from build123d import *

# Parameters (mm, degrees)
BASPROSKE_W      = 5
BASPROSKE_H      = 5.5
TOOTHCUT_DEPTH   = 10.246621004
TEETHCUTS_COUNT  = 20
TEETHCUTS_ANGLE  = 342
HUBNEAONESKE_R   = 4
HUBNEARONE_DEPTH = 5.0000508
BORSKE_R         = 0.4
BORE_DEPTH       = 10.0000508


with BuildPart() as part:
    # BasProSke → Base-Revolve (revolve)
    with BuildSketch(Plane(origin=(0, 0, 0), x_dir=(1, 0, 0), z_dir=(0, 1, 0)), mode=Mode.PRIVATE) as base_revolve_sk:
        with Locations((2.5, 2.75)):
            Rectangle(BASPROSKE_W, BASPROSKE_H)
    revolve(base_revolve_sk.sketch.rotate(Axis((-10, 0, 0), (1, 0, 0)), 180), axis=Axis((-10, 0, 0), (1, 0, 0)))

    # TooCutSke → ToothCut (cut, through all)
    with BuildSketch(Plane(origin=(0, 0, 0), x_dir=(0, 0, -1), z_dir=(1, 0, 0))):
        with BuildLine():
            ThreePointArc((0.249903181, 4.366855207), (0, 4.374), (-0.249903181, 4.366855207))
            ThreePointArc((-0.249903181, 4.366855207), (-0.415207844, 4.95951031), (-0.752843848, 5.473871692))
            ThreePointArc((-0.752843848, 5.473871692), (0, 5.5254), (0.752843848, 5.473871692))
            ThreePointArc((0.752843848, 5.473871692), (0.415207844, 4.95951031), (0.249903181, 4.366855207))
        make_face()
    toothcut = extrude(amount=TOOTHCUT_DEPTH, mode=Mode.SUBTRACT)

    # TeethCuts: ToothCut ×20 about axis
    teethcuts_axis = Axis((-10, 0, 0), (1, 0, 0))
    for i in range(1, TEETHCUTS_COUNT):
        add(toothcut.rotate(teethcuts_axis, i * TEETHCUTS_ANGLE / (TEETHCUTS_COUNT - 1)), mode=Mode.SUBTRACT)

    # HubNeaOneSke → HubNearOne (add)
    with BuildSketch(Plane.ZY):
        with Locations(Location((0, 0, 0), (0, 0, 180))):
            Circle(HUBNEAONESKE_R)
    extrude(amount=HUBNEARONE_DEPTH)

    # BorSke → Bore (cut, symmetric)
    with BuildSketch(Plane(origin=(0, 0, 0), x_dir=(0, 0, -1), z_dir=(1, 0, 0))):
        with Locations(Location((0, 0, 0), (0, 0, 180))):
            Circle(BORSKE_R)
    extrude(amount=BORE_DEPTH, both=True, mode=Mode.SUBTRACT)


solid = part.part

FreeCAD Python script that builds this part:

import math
import FreeCAD as App
import Part
import Sketcher

doc = App.newDocument("Part")
body = doc.addObject("PartDesign::Body", "Body")

sketch1 = body.newObject("Sketcher::SketchObject", "Sketch")
sketch1.AttachmentSupport = (doc.getObject("XZ_Plane"), [""])
sketch1.MapMode = "FlatFace"
sketch1.addGeometry([
    Part.LineSegment(App.Vector(0, -6, 0), App.Vector(0, 0, 0)),
    Part.LineSegment(App.Vector(0, 0, 0), App.Vector(5, 0, 0)),
    Part.LineSegment(App.Vector(5, 0, 0), App.Vector(5, -6, 0)),
    Part.LineSegment(App.Vector(5, -6, 0), App.Vector(0, -6, 0)),
], False)
sketch1.addConstraint([
    Sketcher.Constraint("Coincident", 0, 2, 1, 1),
    Sketcher.Constraint("Coincident", 1, 2, 2, 1),
    Sketcher.Constraint("Coincident", 2, 2, 3, 1),
    Sketcher.Constraint("Coincident", 3, 2, 0, 1),
    Sketcher.Constraint("Vertical", 0),
    Sketcher.Constraint("Horizontal", 1),
    Sketcher.Constraint("Vertical", 2),
    Sketcher.Constraint("Horizontal", 3),
    Sketcher.Constraint("Coincident", 0, 2, -1, 1),
    Sketcher.Constraint("DistanceX", 1, 1, 1, 2, 5.0),
    Sketcher.Constraint("DistanceY", 0, 1, 0, 2, 5.5),
])
revolution = body.newObject("PartDesign::Revolution", "Revolution")
revolution.Profile = sketch1
revolution.ReferenceAxis = (sketch1, ["H_Axis"])
revolution.Angle = 360

sketch2 = body.newObject("Sketcher::SketchObject", "Sketch001")
sketch2.AttachmentSupport = (doc.getObject("YZ_Plane"), [""])
sketch2.MapMode = "FlatFace"
sketch2.addGeometry([
    Part.ArcOfCircle(Part.Circle(App.Vector(0, 0, 0), App.Vector(0, 0, 1), 4.37), math.radians(-3.28), math.radians(3.28)),
    Part.ArcOfCircle(Part.Circle(App.Vector(4.13, -2.24, 0), App.Vector(0, 0, 1), 2), math.radians(48), math.radians(83)),
    Part.ArcOfCircle(Part.Circle(App.Vector(0, 0, 0), App.Vector(0, 0, 1), 5.53), math.radians(-7.83), math.radians(7.83)),
    Part.ArcOfCircle(Part.Circle(App.Vector(4.13, 2.24, 0), App.Vector(0, 0, 1), 2), math.radians(-83), math.radians(-48)),
], False)
sketch2.addConstraint([
    Sketcher.Constraint("Coincident", 0, 1, 1, 2),
    Sketcher.Constraint("Coincident", 1, 1, 2, 1),
    Sketcher.Constraint("Coincident", 2, 2, 3, 2),
    Sketcher.Constraint("Coincident", 3, 1, 0, 2),
    Sketcher.Constraint("Coincident", 0, 3, -1, 1),
    Sketcher.Constraint("Coincident", 2, 3, -1, 1),
    Sketcher.Constraint("Equal", 1, 3),
    Sketcher.Constraint("Symmetric", 1, 3, 3, 3, -1),
    Sketcher.Constraint("Radius", 1, 2.0),
    Sketcher.Constraint("Radius", 0, 4.374),
    Sketcher.Constraint("Radius", 2, 5.5254),
    Sketcher.Constraint("DistanceY", 0, 1, 3, 3, 2.485998),
    Sketcher.Constraint("DistanceX", -1, 1, 1, 1, 5.473872),
])
pocket1 = body.newObject("PartDesign::Pocket", "Pocket")
pocket1.Profile = sketch2
pocket1.Type = "ThroughAll"
pocket1.Reversed = True
doc.recompute()

polarpattern = body.newObject("PartDesign::PolarPattern", "PolarPattern")
polarpattern.Originals = [pocket1]
polarpattern.Axis = (doc.getObject("X_Axis"), [""])
polarpattern.Angle = 360
polarpattern.Occurrences = 20
body.Tip = polarpattern

sketch3 = body.newObject("Sketcher::SketchObject", "Sketch002")
sketch3.AttachmentSupport = (doc.getObject("YZ_Plane"), [""])
sketch3.MapMode = "FlatFace"
sketch3.addGeometry(Part.Circle(App.Vector(0, 0, 0), App.Vector(0, 0, 1), 4), False)
sketch3.addConstraint([
    Sketcher.Constraint("Coincident", 0, 3, -1, 1),
    Sketcher.Constraint("Diameter", 0, 8.0),
])
pad1 = body.newObject("PartDesign::Pad", "Pad")
pad1.Profile = sketch3
pad1.Length = 5.000051
pad1.Reversed = True

sketch4 = body.newObject("Sketcher::SketchObject", "Sketch003")
sketch4.AttachmentSupport = (doc.getObject("YZ_Plane"), [""])
sketch4.MapMode = "FlatFace"
sketch4.addGeometry(Part.Circle(App.Vector(0, 0, 0), App.Vector(0, 0, 1), 0.4), False)
sketch4.addConstraint([
    Sketcher.Constraint("Coincident", 0, 3, -1, 1),
    Sketcher.Constraint("Diameter", 0, 0.8),
])
pocket2 = body.newObject("PartDesign::Pocket", "Pocket001")
pocket2.Profile = sketch4
pocket2.Length = 20.000102
pocket2.Midplane = True

doc.recompute()
